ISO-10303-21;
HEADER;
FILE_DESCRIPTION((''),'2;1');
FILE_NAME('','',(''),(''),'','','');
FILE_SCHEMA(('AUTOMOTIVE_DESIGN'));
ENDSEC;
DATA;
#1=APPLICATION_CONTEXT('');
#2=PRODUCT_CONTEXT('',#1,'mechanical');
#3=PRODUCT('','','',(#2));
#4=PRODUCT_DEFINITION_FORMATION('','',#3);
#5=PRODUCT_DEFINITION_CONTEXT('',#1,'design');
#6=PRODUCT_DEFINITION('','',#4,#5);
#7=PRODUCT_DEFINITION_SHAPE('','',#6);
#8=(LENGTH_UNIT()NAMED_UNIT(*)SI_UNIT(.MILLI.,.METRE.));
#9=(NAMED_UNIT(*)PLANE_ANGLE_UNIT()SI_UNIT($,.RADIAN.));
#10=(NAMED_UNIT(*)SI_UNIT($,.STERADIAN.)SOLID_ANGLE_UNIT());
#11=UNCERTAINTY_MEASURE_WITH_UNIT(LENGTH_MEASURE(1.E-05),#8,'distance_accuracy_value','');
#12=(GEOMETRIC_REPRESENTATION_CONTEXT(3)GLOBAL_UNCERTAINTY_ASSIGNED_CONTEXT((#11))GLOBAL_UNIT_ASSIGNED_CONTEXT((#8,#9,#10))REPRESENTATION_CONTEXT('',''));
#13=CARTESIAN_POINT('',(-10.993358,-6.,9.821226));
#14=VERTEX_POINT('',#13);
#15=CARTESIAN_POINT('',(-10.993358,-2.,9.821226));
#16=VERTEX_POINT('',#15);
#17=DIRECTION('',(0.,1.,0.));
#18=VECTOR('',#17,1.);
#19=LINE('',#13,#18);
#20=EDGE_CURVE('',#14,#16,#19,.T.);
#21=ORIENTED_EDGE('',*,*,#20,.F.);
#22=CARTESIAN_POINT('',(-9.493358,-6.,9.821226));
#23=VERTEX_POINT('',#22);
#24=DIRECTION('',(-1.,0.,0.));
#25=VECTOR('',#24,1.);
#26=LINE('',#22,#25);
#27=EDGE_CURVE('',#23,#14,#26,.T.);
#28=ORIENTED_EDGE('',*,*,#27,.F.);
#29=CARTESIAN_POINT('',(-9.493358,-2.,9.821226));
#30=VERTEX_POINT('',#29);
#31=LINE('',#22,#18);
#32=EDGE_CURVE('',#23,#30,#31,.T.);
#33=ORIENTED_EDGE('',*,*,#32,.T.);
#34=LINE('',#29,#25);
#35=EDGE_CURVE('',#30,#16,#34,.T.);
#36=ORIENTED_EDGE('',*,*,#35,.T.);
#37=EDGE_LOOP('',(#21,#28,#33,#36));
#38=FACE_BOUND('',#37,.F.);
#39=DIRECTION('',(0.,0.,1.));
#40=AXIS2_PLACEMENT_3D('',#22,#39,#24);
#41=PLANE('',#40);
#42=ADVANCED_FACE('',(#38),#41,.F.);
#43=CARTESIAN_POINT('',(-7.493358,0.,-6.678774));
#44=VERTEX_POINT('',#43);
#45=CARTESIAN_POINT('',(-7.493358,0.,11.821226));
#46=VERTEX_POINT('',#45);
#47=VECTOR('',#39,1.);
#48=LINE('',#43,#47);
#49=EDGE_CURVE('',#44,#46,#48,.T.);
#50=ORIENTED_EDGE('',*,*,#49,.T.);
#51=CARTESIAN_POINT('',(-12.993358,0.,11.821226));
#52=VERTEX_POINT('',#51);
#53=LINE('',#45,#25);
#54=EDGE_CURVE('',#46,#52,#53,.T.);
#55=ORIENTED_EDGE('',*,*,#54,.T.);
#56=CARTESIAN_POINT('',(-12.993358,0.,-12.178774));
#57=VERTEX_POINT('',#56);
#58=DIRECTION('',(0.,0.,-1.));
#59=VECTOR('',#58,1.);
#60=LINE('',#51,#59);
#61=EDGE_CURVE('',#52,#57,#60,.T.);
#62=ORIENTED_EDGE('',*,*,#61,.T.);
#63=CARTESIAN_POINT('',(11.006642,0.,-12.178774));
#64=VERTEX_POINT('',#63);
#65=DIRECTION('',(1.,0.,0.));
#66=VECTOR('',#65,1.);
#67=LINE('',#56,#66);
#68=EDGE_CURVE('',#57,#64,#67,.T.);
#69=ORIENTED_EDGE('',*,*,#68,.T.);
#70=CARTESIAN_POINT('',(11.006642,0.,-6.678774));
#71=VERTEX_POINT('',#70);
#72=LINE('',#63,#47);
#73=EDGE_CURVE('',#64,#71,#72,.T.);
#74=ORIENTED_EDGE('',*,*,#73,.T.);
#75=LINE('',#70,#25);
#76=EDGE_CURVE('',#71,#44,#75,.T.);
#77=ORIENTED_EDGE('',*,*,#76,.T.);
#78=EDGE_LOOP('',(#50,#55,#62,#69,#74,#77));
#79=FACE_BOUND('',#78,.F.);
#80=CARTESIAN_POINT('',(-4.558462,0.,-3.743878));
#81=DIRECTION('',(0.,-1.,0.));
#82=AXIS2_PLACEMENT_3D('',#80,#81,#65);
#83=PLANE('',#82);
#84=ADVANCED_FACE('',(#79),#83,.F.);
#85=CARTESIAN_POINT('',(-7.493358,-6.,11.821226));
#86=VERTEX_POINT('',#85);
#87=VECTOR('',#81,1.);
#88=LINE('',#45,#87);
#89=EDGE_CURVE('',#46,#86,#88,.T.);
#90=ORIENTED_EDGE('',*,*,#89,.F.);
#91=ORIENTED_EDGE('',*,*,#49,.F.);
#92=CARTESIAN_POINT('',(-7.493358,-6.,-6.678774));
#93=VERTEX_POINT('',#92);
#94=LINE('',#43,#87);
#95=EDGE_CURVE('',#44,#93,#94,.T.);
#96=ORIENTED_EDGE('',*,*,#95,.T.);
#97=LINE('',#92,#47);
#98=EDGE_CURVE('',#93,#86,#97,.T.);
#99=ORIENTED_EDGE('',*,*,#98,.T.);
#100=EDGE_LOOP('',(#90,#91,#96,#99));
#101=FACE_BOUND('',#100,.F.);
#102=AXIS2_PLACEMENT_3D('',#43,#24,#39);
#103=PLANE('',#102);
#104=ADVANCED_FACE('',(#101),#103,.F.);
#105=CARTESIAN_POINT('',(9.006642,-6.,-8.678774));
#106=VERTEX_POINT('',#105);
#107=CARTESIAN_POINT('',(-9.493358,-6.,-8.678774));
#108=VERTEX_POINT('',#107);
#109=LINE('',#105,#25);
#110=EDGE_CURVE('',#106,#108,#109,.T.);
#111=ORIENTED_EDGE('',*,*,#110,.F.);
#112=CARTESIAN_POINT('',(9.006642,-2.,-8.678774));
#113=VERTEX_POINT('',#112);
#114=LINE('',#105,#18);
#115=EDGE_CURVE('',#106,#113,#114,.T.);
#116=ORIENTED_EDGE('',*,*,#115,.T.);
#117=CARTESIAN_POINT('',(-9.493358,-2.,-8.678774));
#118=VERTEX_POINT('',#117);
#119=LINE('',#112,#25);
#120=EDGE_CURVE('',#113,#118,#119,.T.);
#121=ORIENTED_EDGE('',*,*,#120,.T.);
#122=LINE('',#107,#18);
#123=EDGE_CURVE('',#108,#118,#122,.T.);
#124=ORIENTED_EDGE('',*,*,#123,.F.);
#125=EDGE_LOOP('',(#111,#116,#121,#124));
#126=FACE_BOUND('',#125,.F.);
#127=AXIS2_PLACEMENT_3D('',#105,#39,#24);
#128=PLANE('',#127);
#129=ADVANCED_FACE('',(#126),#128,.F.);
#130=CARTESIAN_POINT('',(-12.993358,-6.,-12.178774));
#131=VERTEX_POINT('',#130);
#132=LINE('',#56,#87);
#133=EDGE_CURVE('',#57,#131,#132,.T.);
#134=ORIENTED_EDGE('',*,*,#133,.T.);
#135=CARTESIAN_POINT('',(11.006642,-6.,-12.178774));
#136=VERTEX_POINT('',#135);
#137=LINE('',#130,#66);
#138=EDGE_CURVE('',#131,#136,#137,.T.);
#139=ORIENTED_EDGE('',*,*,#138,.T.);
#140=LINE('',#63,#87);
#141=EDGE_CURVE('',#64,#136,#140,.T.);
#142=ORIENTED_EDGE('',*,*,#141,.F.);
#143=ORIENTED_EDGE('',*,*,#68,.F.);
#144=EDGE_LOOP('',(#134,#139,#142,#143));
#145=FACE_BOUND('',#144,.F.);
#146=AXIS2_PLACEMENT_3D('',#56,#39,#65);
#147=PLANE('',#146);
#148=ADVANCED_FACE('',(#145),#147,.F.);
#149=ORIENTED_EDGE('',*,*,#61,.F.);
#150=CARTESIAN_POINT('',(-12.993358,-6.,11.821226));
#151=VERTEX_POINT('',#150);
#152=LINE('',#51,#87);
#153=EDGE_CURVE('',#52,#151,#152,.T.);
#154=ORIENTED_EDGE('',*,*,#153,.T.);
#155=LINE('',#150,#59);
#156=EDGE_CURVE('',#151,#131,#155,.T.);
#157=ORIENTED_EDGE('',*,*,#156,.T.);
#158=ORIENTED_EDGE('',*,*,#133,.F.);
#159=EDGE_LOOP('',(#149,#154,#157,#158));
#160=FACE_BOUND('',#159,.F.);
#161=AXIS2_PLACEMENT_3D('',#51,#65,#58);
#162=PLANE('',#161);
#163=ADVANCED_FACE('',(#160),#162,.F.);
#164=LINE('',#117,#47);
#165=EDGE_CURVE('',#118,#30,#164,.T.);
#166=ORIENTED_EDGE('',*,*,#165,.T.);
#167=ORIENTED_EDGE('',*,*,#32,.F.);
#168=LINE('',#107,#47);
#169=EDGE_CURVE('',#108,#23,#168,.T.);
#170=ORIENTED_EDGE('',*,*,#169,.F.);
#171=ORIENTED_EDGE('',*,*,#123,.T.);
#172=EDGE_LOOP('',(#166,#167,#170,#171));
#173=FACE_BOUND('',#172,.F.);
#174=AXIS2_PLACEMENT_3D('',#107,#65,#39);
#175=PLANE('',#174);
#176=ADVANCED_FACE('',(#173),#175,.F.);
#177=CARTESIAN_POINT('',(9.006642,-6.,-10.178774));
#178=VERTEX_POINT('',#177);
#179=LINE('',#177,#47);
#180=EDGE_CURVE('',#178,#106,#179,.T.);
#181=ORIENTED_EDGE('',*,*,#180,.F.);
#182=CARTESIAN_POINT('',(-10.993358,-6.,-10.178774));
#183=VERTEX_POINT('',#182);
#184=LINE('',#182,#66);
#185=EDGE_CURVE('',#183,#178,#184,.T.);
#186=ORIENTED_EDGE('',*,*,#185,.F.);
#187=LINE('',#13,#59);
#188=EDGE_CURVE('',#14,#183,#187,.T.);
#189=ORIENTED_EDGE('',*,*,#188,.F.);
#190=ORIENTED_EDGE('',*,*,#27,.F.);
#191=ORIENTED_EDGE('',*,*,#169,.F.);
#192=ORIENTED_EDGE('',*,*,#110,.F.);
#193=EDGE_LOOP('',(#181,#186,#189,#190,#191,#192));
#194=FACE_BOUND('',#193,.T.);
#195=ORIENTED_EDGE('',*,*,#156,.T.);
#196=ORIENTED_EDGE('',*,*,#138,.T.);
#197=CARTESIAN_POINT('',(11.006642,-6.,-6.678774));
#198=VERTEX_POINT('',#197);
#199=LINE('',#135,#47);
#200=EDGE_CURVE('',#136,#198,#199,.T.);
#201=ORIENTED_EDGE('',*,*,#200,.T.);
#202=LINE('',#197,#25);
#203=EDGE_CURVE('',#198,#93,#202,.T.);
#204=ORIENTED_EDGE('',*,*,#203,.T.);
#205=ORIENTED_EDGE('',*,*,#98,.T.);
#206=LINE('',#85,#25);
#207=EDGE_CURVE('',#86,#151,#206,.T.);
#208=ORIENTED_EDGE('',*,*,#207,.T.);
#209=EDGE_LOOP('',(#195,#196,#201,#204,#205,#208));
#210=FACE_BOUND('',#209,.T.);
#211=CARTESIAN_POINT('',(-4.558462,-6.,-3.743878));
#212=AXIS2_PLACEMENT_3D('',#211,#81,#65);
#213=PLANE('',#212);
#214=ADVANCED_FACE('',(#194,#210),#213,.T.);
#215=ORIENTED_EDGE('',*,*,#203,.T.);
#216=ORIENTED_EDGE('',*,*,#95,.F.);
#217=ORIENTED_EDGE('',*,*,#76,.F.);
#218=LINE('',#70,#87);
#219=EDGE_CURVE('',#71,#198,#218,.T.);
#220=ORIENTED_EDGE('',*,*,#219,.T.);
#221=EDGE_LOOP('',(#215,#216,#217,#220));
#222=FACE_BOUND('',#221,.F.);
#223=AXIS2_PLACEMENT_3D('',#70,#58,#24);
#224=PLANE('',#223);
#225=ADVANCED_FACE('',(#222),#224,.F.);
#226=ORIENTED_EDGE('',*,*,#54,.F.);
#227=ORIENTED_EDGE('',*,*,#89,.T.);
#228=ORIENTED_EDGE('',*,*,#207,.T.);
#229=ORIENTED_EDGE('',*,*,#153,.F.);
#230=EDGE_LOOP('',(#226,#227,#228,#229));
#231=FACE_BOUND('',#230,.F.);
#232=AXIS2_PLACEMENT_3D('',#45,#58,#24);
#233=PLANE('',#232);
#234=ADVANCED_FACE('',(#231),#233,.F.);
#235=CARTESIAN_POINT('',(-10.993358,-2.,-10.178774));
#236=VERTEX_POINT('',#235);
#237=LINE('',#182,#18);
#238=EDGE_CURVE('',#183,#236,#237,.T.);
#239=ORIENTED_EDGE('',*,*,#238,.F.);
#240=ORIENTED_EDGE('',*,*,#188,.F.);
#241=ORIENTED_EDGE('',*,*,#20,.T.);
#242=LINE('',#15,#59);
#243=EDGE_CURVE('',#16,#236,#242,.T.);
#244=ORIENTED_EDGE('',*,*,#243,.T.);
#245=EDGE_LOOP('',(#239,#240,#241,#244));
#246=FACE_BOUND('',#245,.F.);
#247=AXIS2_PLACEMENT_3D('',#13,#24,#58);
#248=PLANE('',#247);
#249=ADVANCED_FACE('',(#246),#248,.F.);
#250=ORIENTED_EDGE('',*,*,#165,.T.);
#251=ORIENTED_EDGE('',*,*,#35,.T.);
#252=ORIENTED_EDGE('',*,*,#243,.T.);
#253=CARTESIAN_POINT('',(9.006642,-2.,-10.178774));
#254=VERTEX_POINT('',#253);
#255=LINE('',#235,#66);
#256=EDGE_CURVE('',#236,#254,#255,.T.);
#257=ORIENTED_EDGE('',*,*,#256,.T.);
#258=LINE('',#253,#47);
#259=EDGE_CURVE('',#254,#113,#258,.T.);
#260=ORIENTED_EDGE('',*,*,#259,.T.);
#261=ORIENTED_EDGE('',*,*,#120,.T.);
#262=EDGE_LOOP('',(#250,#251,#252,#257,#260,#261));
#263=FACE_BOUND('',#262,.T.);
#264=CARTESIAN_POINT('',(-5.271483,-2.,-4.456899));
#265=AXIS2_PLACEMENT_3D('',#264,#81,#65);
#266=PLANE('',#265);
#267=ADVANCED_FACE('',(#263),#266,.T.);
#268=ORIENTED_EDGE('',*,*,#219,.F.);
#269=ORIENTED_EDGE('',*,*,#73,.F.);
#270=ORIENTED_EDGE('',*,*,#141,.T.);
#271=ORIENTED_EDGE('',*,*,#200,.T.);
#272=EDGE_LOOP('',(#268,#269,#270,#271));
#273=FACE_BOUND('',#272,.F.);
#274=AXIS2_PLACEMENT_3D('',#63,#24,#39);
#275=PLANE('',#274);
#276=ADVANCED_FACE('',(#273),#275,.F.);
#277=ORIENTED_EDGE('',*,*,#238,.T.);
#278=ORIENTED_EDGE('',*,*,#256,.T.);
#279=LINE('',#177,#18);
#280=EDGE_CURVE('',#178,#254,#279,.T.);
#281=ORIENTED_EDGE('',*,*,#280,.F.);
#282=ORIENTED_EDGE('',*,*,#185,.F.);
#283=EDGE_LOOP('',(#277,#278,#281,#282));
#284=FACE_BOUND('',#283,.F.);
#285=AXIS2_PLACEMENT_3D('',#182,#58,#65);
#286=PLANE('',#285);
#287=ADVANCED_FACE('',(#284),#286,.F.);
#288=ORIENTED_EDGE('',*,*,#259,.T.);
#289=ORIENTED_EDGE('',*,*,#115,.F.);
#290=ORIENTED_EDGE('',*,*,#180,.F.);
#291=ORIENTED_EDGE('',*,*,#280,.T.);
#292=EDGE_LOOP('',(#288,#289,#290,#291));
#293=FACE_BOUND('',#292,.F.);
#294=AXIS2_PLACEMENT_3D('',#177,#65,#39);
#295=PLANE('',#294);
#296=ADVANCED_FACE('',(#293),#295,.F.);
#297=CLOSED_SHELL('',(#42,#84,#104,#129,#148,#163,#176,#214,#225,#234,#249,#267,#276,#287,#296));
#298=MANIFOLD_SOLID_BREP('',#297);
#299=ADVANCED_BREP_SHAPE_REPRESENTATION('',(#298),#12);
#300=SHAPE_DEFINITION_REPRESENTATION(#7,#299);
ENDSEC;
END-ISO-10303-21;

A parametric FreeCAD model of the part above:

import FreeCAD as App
import Part
import Sketcher

doc = App.newDocument("Part")
params = doc.addObject("Spreadsheet::Sheet", "Params")
for row, (alias, value) in enumerate([
    ("sketch1_width", "24 mm"),
    ("sketch1_width2", "18.5 mm"),
    ("pad1_length", "6 mm"),
    ("sketch2_width", "20 mm"),
    ("sketch2_width2", "18.5 mm"),
    ("pocket1_length", "4 mm"),
], start=1):
    params.set(f"A{row}", alias)
    params.set(f"B{row}", "=" + value)
    params.setAlias(f"B{row}", alias)

body = doc.addObject("PartDesign::Body", "Body")

sketch1 = doc.addObject("Sketcher::SketchObject", "Sketch")
body.addObject(sketch1)
sketch1.AttachmentSupport = (doc.XY_Plane, [""])
sketch1.MapMode = "FlatFace"
sketch1.addGeometry([
    Part.LineSegment(App.Vector(-13, 12, 0), App.Vector(-13, -12, 0)),
    Part.LineSegment(App.Vector(-13, -12, 0), App.Vector(11, -12, 0)),
    Part.LineSegment(App.Vector(11, -12, 0), App.Vector(11, -7, 0)),
    Part.LineSegment(App.Vector(11, -7, 0), App.Vector(-7, -7, 0)),
    Part.LineSegment(App.Vector(-7, -7, 0), App.Vector(-7, 12, 0)),
    Part.LineSegment(App.Vector(-7, 12, 0), App.Vector(-13, 12, 0)),
], False)
sketch1.addConstraint([
    Sketcher.Constraint("Coincident", 0, 2, 1, 1),
    Sketcher.Constraint("Coincident", 1, 2, 2, 1),
    Sketcher.Constraint("Coincident", 2, 2, 3, 1),
    Sketcher.Constraint("Coincident", 3, 2, 4, 1),
    Sketcher.Constraint("Coincident", 4, 2, 5, 1),
    Sketcher.Constraint("Coincident", 5, 2, 0, 1),
    Sketcher.Constraint("Vertical", 0),
    Sketcher.Constraint("Horizontal", 1),
    Sketcher.Constraint("Vertical", 2),
    Sketcher.Constraint("Horizontal", 3),
    Sketcher.Constraint("Vertical", 4),
    Sketcher.Constraint("Horizontal", 5),
    Sketcher.Constraint("Equal", 1, 0),
    Sketcher.Constraint("Equal", 5, 2),
    Sketcher.Constraint("DistanceX", 1, 1, 1, 2, 24.0),
    Sketcher.Constraint("DistanceX", 3, 2, 3, 1, 18.5),
    Sketcher.Constraint("DistanceX", 0, 2, -1, 1, 12.993358),
    Sketcher.Constraint("DistanceY", 0, 2, -1, 1, 12.178774),
])
sketch1.setExpression("Constraints[14]", "Params.sketch1_width")
sketch1.setExpression("Constraints[15]", "Params.sketch1_width2")
pad1 = doc.addObject("PartDesign::Pad", "Pad")
body.addObject(pad1)
pad1.Profile = sketch1
pad1.setExpression("Length", "Params.pad1_length")
body2 = doc.addObject("PartDesign::Body", "Body001")
doc.recompute()

body.Placement = App.Placement(App.Vector(0, 0, 0), App.Rotation(App.Vector(1, 0, 0), 90))
boolean = doc.addObject("PartDesign::Boolean", "Boolean")
body2.addObject(boolean)
boolean.Type = "Fuse"
boolean.addObjects([body])

sketch2 = doc.addObject("Sketcher::SketchObject", "Sketch001")
body2.addObject(sketch2)
sketch2.AttachmentSupport = (doc.getObject("XZ_Plane001"), [""])
sketch2.MapMode = "FlatFace"
sketch2.AttachmentOffset = App.Placement(App.Vector(0, 0, 6), App.Rotation())
sketch2.addGeometry([
    Part.LineSegment(App.Vector(-11, 9.8, 0), App.Vector(-11, -10.2, 0)),
    Part.LineSegment(App.Vector(-11, -10.2, 0), App.Vector(9, -10.2, 0)),
    Part.LineSegment(App.Vector(9, -10.2, 0), App.Vector(9, -8.7, 0)),
    Part.LineSegment(App.Vector(9, -8.7, 0), App.Vector(-9.5, -8.7, 0)),
    Part.LineSegment(App.Vector(-9.5, -8.7, 0), App.Vector(-9.5, 9.8, 0)),
    Part.LineSegment(App.Vector(-9.5, 9.8, 0), App.Vector(-11, 9.8, 0)),
], False)
sketch2.addConstraint([
    Sketcher.Constraint("Coincident", 0, 2, 1, 1),
    Sketcher.Constraint("Coincident", 1, 2, 2, 1),
    Sketcher.Constraint("Coincident", 2, 2, 3, 1),
    Sketcher.Constraint("Coincident", 3, 2, 4, 1),
    Sketcher.Constraint("Coincident", 4, 2, 5, 1),
    Sketcher.Constraint("Coincident", 5, 2, 0, 1),
    Sketcher.Constraint("Vertical", 0),
    Sketcher.Constraint("Horizontal", 1),
    Sketcher.Constraint("Vertical", 2),
    Sketcher.Constraint("Horizontal", 3),
    Sketcher.Constraint("Vertical", 4),
    Sketcher.Constraint("Horizontal", 5),
    Sketcher.Constraint("Equal", 1, 0),
    Sketcher.Constraint("Equal", 5, 2),
    Sketcher.Constraint("DistanceX", 1, 1, 1, 2, 20.0),
    Sketcher.Constraint("DistanceX", 3, 2, 3, 1, 18.5),
    Sketcher.Constraint("DistanceX", 0, 2, -1, 1, 10.993358),
    Sketcher.Constraint("DistanceY", 0, 2, -1, 1, 10.178774),
])
sketch2.setExpression("Constraints[14]", "Params.sketch2_width")
sketch2.setExpression("Constraints[15]", "Params.sketch2_width2")
pocket1 = doc.addObject("PartDesign::Pocket", "Pocket")
body2.addObject(pocket1)
pocket1.Profile = sketch2
pocket1.setExpression("Length", "Params.pocket1_length")

doc.recompute()
